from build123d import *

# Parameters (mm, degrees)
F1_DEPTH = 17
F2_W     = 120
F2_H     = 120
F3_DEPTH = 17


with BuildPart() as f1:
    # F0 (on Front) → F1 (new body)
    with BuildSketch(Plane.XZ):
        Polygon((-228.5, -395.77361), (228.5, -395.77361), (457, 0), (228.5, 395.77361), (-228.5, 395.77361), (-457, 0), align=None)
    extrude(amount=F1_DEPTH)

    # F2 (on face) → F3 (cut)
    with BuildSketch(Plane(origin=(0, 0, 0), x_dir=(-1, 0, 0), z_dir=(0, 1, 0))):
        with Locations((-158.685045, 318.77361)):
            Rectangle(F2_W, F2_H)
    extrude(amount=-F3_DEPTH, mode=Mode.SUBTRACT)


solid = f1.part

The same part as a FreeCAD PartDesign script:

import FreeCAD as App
import Part
import Sketcher

V = App.Vector
Q = App.Units.Quantity

doc = App.newDocument("Part")
body = doc.addObject("PartDesign::Body", "Body")

# Sketch on XZ plane
sketch1 = doc.addObject("Sketcher::SketchObject", "Sketch")
body.addObject(sketch1)
sketch1.AttachmentSupport = (doc.XZ_Plane, [""])
sketch1.MapMode = "FlatFace"
sketch1.addGeometry([
    Part.LineSegment(V(-228, -396, 0), V(228, -396, 0)),  # 0
    Part.LineSegment(V(228, -396, 0), V(457, 0, 0)),  # 1
    Part.LineSegment(V(457, 0, 0), V(228, 396, 0)),  # 2
    Part.LineSegment(V(228, 396, 0), V(-228, 396, 0)),  # 3
    Part.LineSegment(V(-228, 396, 0), V(-457, 0, 0)),  # 4
    Part.LineSegment(V(-457, 0, 0), V(-228, -396, 0)),  # 5
], False)
sketch1.addConstraint([
    Sketcher.Constraint("Coincident", 0, 2, 1, 1),
    Sketcher.Constraint("Coincident", 1, 2, 2, 1),
    Sketcher.Constraint("Coincident", 2, 2, 3, 1),
    Sketcher.Constraint("Coincident", 3, 2, 4, 1),
    Sketcher.Constraint("Coincident", 4, 2, 5, 1),
    Sketcher.Constraint("Coincident", 5, 2, 0, 1),
    Sketcher.Constraint("Horizontal", 0),
    Sketcher.Constraint("Horizontal", 3),
    Sketcher.Constraint("Symmetric", 0, 2, 3, 2, -1, 1),
    Sketcher.Constraint("Symmetric", 1, 2, 4, 2, -1, 1),
    Sketcher.Constraint("PointOnObject", 1, 2, -1),
    Sketcher.Constraint("Parallel", 2, 5),
    Sketcher.Constraint("Vertical", 0, 2, 2, 2),
    Sketcher.Constraint("DistanceX", 0, 1, 0, 2, 457.0),
    Sketcher.Constraint("Angle", 1, Q("60 deg")),
    Sketcher.Constraint("Distance", 1, 457.0),
])
pad1 = doc.addObject("PartDesign::Pad", "Pad")
body.addObject(pad1)
pad1.Profile = sketch1
pad1.Length = 17

# Sketch on XZ plane
sketch2 = doc.addObject("Sketcher::SketchObject", "Sketch001")
body.addObject(sketch2)
sketch2.AttachmentSupport = (doc.XZ_Plane, [""])
sketch2.MapMode = "FlatFace"
sketch2.addGeometry([
    Part.LineSegment(V(219, 379, 0), V(219, 259, 0)),
    Part.LineSegment(V(219, 259, 0), V(99, 259, 0)),
    Part.LineSegment(V(99, 259, 0), V(99, 379, 0)),
    Part.LineSegment(V(99, 379, 0), V(219, 379, 0)),
], False)
sketch2.addConstraint([
    Sketcher.Constraint("Coincident", 0, 2, 1, 1),
    Sketcher.Constraint("Coincident", 1, 2, 2, 1),
    Sketcher.Constraint("Coincident", 2, 2, 3, 1),
    Sketcher.Constraint("Coincident", 3, 2, 0, 1),
    Sketcher.Constraint("Vertical", 0),
    Sketcher.Constraint("Horizontal", 1),
    Sketcher.Constraint("Vertical", 2),
    Sketcher.Constraint("Horizontal", 3),
    Sketcher.Constraint("Equal", 3, 0),
    Sketcher.Constraint("DistanceX", 1, 2, 1, 1, 120.0),
    Sketcher.Constraint("DistanceY", -1, 1, 0, 2, 258.77361),
    Sketcher.Constraint("DistanceX", -1, 1, 0, 2, 218.685045),
])
pocket1 = doc.addObject("PartDesign::Pocket", "Pocket")
body.addObject(pocket1)
pocket1.Profile = sketch2
pocket1.Length = 17
pocket1.Reversed = True

doc.recompute()
